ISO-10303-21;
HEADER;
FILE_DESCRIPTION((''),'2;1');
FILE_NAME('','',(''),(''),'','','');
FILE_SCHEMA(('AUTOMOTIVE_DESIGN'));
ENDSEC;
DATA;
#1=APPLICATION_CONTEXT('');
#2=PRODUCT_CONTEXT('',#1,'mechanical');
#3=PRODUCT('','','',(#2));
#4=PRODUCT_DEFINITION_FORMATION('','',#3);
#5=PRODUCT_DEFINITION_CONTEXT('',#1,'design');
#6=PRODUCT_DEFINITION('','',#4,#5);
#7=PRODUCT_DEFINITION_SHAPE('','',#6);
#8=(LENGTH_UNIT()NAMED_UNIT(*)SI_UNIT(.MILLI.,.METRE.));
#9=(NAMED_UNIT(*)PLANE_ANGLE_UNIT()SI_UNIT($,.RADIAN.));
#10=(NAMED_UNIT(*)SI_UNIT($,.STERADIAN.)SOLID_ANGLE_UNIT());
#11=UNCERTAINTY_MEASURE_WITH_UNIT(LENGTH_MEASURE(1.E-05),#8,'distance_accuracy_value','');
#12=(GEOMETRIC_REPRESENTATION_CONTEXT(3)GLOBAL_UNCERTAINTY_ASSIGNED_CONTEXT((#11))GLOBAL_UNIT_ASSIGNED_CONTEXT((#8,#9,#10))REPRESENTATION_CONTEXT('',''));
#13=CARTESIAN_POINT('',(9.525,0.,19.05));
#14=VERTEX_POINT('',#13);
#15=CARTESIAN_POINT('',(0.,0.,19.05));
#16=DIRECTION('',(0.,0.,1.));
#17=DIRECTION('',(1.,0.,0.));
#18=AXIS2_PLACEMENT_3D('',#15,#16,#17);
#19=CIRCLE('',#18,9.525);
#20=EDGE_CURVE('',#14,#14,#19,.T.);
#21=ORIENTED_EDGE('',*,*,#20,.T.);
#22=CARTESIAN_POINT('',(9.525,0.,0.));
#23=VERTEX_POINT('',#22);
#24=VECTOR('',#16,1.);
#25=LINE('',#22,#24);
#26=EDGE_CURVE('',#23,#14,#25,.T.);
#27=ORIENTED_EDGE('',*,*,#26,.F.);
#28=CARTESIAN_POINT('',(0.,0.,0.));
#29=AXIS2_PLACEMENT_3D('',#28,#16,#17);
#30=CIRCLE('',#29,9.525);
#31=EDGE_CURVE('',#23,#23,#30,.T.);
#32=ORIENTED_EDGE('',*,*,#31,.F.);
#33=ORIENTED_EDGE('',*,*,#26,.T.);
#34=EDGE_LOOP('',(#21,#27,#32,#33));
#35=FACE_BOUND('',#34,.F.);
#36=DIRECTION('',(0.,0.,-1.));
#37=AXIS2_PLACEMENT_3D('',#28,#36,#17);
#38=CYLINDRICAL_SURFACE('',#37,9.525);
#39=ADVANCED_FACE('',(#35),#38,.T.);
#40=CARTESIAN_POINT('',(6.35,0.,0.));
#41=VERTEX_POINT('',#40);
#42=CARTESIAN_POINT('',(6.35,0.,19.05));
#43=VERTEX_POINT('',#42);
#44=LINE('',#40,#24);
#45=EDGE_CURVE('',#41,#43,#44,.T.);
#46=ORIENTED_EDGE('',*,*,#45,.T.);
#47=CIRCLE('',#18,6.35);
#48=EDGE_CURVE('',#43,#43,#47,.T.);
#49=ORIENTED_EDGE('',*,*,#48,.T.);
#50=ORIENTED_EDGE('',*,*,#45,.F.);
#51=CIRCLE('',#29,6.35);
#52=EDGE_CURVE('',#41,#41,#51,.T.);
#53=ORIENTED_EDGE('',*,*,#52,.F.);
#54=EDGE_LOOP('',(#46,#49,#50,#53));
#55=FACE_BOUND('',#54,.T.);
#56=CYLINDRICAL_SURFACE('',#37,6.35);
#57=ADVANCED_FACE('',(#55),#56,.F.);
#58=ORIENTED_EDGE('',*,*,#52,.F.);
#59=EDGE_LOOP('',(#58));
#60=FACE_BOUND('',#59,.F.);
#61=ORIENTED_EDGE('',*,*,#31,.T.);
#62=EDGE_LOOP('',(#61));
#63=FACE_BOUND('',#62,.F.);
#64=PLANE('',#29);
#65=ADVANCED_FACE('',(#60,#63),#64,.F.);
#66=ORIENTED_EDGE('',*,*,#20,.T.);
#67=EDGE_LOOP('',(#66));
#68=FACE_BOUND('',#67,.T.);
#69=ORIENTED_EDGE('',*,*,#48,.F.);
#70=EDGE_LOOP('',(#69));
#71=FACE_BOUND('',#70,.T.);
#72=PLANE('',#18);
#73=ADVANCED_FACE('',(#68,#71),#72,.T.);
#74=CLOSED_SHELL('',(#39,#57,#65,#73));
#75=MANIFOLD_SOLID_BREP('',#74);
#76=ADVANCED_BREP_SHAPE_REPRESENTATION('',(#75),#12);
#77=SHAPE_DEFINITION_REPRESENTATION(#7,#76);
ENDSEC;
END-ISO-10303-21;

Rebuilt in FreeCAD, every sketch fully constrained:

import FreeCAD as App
import Part
import Sketcher

V = App.Vector
Q = App.Units.Quantity

doc = App.newDocument("Part")
body = doc.addObject("PartDesign::Body", "Body")

sketch1 = body.newObject("Sketcher::SketchObject", "Sketch")
sketch1.AttachmentSupport = (doc.getObject("XY_Plane"), [""])
sketch1.MapMode = "FlatFace"
sketch1.addGeometry([
    Part.Circle(V(0, 0, 0), V(0, 0, 1), 10),
    Part.Circle(V(0, 0, 0), V(0, 0, 1), 6),
], False)
sketch1.addConstraint([
    Sketcher.Constraint("Coincident", 0, 3, -1, 1),
    Sketcher.Constraint("Coincident", 1, 3, -1, 1),
    Sketcher.Constraint("Diameter", 1, Q("0.5 in")),
    Sketcher.Constraint("Diameter", 0, Q("0.75 in")),
])
pad1 = body.newObject("PartDesign::Pad", "Pad")
pad1.Profile = sketch1
pad1.Length = Q("0.75 in")

doc.recompute()
